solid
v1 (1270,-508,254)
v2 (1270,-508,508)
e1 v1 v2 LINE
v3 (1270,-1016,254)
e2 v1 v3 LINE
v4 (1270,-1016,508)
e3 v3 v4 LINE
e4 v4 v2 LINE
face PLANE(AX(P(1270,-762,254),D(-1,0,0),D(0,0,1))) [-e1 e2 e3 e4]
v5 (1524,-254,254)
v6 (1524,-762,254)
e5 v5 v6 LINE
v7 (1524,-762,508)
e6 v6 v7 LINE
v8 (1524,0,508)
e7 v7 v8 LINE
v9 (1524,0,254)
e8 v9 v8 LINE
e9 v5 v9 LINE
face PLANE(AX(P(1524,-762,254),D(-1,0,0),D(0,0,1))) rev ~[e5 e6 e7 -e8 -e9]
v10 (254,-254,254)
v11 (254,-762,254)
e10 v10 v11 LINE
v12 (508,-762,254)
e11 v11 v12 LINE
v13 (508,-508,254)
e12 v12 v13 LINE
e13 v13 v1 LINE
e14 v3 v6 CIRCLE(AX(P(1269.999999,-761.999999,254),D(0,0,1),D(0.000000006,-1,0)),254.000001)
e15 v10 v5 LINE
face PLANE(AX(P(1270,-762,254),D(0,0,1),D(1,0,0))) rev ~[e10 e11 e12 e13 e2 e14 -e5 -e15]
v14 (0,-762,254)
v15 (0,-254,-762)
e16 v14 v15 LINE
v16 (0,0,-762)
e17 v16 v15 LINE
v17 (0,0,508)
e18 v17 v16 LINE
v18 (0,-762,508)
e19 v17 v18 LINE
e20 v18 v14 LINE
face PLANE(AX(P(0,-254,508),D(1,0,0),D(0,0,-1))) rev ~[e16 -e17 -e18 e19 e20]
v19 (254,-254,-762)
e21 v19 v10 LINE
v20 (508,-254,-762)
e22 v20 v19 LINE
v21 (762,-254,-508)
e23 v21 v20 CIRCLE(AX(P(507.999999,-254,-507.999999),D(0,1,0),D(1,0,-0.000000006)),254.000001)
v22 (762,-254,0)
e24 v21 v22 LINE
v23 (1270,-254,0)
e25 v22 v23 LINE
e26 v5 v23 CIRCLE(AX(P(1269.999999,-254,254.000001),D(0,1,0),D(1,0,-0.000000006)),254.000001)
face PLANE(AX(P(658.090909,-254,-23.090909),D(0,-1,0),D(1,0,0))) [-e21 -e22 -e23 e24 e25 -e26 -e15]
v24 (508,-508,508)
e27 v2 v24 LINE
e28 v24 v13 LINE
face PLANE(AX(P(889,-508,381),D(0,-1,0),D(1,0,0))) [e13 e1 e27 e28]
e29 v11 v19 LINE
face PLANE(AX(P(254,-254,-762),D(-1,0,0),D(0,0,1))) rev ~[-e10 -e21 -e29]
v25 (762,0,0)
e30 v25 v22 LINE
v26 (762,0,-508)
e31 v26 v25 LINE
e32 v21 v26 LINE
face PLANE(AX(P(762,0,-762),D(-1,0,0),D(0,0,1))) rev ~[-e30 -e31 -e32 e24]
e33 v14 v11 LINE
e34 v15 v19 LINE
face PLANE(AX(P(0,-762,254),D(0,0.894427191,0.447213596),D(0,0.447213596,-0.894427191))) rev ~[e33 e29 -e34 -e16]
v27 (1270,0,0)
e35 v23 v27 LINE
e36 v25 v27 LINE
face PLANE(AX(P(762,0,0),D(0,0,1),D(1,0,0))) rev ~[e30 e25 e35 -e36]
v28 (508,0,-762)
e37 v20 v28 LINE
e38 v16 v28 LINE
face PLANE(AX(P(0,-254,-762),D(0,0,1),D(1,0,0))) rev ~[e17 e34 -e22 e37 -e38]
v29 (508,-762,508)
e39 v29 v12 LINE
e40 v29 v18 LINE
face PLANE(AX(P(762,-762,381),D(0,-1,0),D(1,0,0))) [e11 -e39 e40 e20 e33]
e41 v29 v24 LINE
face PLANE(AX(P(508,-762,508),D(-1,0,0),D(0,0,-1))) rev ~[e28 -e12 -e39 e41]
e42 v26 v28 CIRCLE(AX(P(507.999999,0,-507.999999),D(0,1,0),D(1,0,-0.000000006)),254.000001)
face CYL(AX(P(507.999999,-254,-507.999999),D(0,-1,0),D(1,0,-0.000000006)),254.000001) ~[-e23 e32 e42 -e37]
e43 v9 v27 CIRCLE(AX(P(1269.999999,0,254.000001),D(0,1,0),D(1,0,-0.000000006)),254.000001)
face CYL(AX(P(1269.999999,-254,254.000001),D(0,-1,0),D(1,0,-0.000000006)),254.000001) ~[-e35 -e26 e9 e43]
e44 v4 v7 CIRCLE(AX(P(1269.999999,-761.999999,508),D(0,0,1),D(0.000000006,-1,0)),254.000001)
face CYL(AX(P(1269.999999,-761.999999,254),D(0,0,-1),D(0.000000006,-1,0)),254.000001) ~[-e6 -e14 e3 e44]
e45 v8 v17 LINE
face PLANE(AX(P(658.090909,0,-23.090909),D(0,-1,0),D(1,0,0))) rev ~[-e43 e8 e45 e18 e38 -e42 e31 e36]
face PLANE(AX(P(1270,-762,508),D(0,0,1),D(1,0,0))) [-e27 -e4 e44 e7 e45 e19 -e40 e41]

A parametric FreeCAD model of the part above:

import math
import FreeCAD as App
import Part
import Sketcher

V = App.Vector
Q = App.Units.Quantity


def add_polygon(sketch, points):
    """Adds a closed chain of lines whose ends are joined by coincident constraints."""
    first, n = sketch.GeometryCount, len(points)
    for a, b in zip(points, points[1:] + points[:1]):
        sketch.addGeometry(Part.LineSegment(App.Vector(*a, 0), App.Vector(*b, 0)), False)
    for i in range(n):
        sketch.addConstraint(Sketcher.Constraint("Coincident", first + i, 2, first + (i + 1) % n, 1))

doc = App.newDocument("Part")
body = doc.addObject("PartDesign::Body", "Body")

sketch1 = doc.addObject("Sketcher::SketchObject", "Sketch")
body.addObject(sketch1)
sketch1.AttachmentSupport = (doc.XZ_Plane, [""])
sketch1.MapMode = "FlatFace"
add_polygon(sketch1, [(1524, 508), (0, 508), (0, -762), (762, -762), (762, 0), (1524, 0)])
sketch1.addConstraint(Sketcher.Constraint("Horizontal", 0))
sketch1.addConstraint(Sketcher.Constraint("Vertical", 1))
sketch1.addConstraint(Sketcher.Constraint("Horizontal", 2))
sketch1.addConstraint(Sketcher.Constraint("Vertical", 3))
sketch1.addConstraint(Sketcher.Constraint("Horizontal", 4))
sketch1.addConstraint(Sketcher.Constraint("Vertical", 5))
sketch1.addConstraint(Sketcher.Constraint("PointOnObject", 0, 2, -2))
sketch1.addConstraint(Sketcher.Constraint("PointOnObject", 3, 2, -1))
sketch1.addConstraint(Sketcher.Constraint("Equal", 2, 4))
sketch1.addConstraint(Sketcher.Constraint("Equal", 4, 3))
sketch1.addConstraint(Sketcher.Constraint("DistanceX", 0, 2, 0, 1, Q("60 in")))
sketch1.addConstraint(Sketcher.Constraint("DistanceY", 1, 2, 1, 1, Q("50 in")))
pad1 = doc.addObject("PartDesign::Pad", "Pad")
body.addObject(pad1)
pad1.Profile = sketch1
pad1.Length = Q("10 in")

sketch2 = doc.addObject("Sketcher::SketchObject", "Sketch001")
body.addObject(sketch2)
sketch2.AttachmentSupport = (doc.XZ_Plane, [""])
sketch2.MapMode = "FlatFace"
sketch2.AttachmentOffset = App.Placement(V(0, 0, 10 * 25.4), App.Rotation())
add_polygon(sketch2, [(0, 254), (0, -762), (254, -762), (254, 254)])
sketch2.addConstraint(Sketcher.Constraint("Vertical", 0))
sketch2.addConstraint(Sketcher.Constraint("Horizontal", 1))
sketch2.addConstraint(Sketcher.Constraint("Vertical", 2))
sketch2.addConstraint(Sketcher.Constraint("Horizontal", 3))
sketch2.addConstraint(Sketcher.Constraint("PointOnObject", 0, 2, -2))
sketch2.addConstraint(Sketcher.Constraint("DistanceX", 1, 1, 1, 2, Q("10 in")))
sketch2.addConstraint(Sketcher.Constraint("DistanceY", 0, 2, 0, 1, Q("40 in")))
sketch2.addConstraint(Sketcher.Constraint("DistanceY", 0, 2, -1, 1, Q("30 in")))
pad2 = doc.addObject("PartDesign::Pad", "Pad001")
body.addObject(pad2)
pad2.Profile = sketch2
pad2.Length = Q("20 in")

sketch3 = doc.addObject("Sketcher::SketchObject", "Sketch002")
body.addObject(sketch3)
sketch3.AttachmentSupport = (doc.YZ_Plane, [""])
sketch3.MapMode = "FlatFace"
add_polygon(sketch3, [(-762, 254), (-254, -762), (-762, -762)])
sketch3.addConstraint(Sketcher.Constraint("Horizontal", 1))
sketch3.addConstraint(Sketcher.Constraint("Vertical", 2))
sketch3.addConstraint(Sketcher.Constraint("DistanceX", 1, 2, 1, 1, Q("20 in")))
sketch3.addConstraint(Sketcher.Constraint("DistanceY", 2, 1, 2, 2, Q("40 in")))
sketch3.addConstraint(Sketcher.Constraint("DistanceX", 0, 2, -1, 1, Q("10 in")))
sketch3.addConstraint(Sketcher.Constraint("DistanceY", 0, 2, -1, 1, Q("30 in")))
pocket1 = doc.addObject("PartDesign::Pocket", "Pocket")
body.addObject(pocket1)
pocket1.Profile = sketch3
pocket1.Length = Q("12.2 in")
pocket1.Reversed = True

sketch4 = doc.addObject("Sketcher::SketchObject", "Sketch003")
body.addObject(sketch4)
sketch4.AttachmentSupport = (doc.XZ_Plane, [""])
sketch4.MapMode = "FlatFace"
sketch4.AttachmentOffset = App.Placement(V(0, 0, 10 * 25.4), App.Rotation())
add_polygon(sketch4, [(1524, 508), (0, 508), (0, 254), (1524, 254)])
sketch4.addConstraint(Sketcher.Constraint("Horizontal", 0))
sketch4.addConstraint(Sketcher.Constraint("Vertical", 1))
sketch4.addConstraint(Sketcher.Constraint("Horizontal", 2))
sketch4.addConstraint(Sketcher.Constraint("Vertical", 3))
sketch4.addConstraint(Sketcher.Constraint("PointOnObject", 0, 2, -2))
sketch4.addConstraint(Sketcher.Constraint("DistanceX", 0, 2, 0, 1, Q("60 in")))
sketch4.addConstraint(Sketcher.Constraint("DistanceY", 1, 2, 1, 1, Q("10 in")))
sketch4.addConstraint(Sketcher.Constraint("DistanceY", -1, 1, 0, 2, Q("20 in")))
pad3 = doc.addObject("PartDesign::Pad", "Pad002")
body.addObject(pad3)
pad3.Profile = sketch4
pad3.Length = Q("20 in")

sketch5 = doc.addObject("Sketcher::SketchObject", "Sketch004")
body.addObject(sketch5)
sketch5.AttachmentSupport = (doc.XZ_Plane, [""])
sketch5.MapMode = "FlatFace"
sketch5.AttachmentOffset = App.Placement(V(0, 0, 30 * 25.4), App.Rotation())
add_polygon(sketch5, [(508, 508), (508, 254), (1270, 254), (1270, 508)])
sketch5.addConstraint(Sketcher.Constraint("Vertical", 0))
sketch5.addConstraint(Sketcher.Constraint("Horizontal", 1))
sketch5.addConstraint(Sketcher.Constraint("Vertical", 2))
sketch5.addConstraint(Sketcher.Constraint("Horizontal", 3))
sketch5.addConstraint(Sketcher.Constraint("DistanceX", 1, 1, 1, 2, Q("30 in")))
sketch5.addConstraint(Sketcher.Constraint("DistanceY", 0, 2, 0, 1, Q("10 in")))
sketch5.addConstraint(Sketcher.Constraint("DistanceX", -1, 1, 0, 2, Q("20 in")))
sketch5.addConstraint(Sketcher.Constraint("DistanceY", -1, 1, 0, 2, Q("10 in")))
pocket2 = doc.addObject("PartDesign::Pocket", "Pocket001")
body.addObject(pocket2)
pocket2.Profile = sketch5
pocket2.Length = Q("10 in")

sketch6 = doc.addObject("Sketcher::SketchObject", "Sketch005")
body.addObject(sketch6)
sketch6.AttachmentSupport = (doc.XZ_Plane, [""])
sketch6.MapMode = "FlatFace"
sketch6.AttachmentOffset = App.Placement(V(0, 0, 30 * 25.4), App.Rotation())
add_polygon(sketch6, [(1270, 508), (1270, 254), (1524, 254), (1524, 508)])
sketch6.addConstraint(Sketcher.Constraint("Vertical", 0))
sketch6.addConstraint(Sketcher.Constraint("Horizontal", 1))
sketch6.addConstraint(Sketcher.Constraint("Vertical", 2))
sketch6.addConstraint(Sketcher.Constraint("Horizontal", 3))
sketch6.addConstraint(Sketcher.Constraint("Equal", 3, 0))
sketch6.addConstraint(Sketcher.Constraint("DistanceX", 1, 1, 1, 2, Q("10 in")))
sketch6.addConstraint(Sketcher.Constraint("DistanceX", -1, 1, 0, 2, Q("50 in")))
sketch6.addConstraint(Sketcher.Constraint("DistanceY", -1, 1, 0, 2, Q("10 in")))
pad4 = doc.addObject("PartDesign::Pad", "Pad003")
body.addObject(pad4)
pad4.Profile = sketch6
pad4.Length = Q("10 in")

sketch7 = doc.addObject("Sketcher::SketchObject", "Sketch006")
body.addObject(sketch7)
sketch7.AttachmentSupport = (doc.XZ_Plane, [""])
sketch7.MapMode = "FlatFace"
sketch7.AttachmentOffset = App.Placement(V(0, 0, 10 * 25.4), App.Rotation())
sketch7.addGeometry(Part.ArcOfCircle(Part.Circle(V(508, -508, 0), V(0, 0, 1), 254), math.radians(-90), math.radians(0)), False)
sketch7.addGeometry(Part.LineSegment(V(508, -762, 0), V(762, -762, 0)), False)
sketch7.addGeometry(Part.LineSegment(V(762, -762, 0), V(762, -508, 0)), False)
sketch7.addConstraint(Sketcher.Constraint("Tangent", 0, 1, 1, 1))
sketch7.addConstraint(Sketcher.Constraint("Coincident", 1, 2, 2, 1))
sketch7.addConstraint(Sketcher.Constraint("Tangent", 2, 2, 0, 2))
sketch7.addConstraint(Sketcher.Constraint("Horizontal", 1))
sketch7.addConstraint(Sketcher.Constraint("Vertical", 2))
sketch7.addConstraint(Sketcher.Constraint("Radius", 0, Q("10.0000001 in")))
sketch7.addConstraint(Sketcher.Constraint("DistanceX", -1, 1, 0, 3, Q("19.9999999 in")))
sketch7.addConstraint(Sketcher.Constraint("DistanceY", 0, 3, -1, 1, Q("19.9999999 in")))
pocket3 = doc.addObject("PartDesign::Pocket", "Pocket002")
body.addObject(pocket3)
pocket3.Profile = sketch7
pocket3.Length = Q("10 in")

sketch8 = doc.addObject("Sketcher::SketchObject", "Sketch007")
body.addObject(sketch8)
sketch8.AttachmentSupport = (doc.XZ_Plane, [""])
sketch8.MapMode = "FlatFace"
sketch8.AttachmentOffset = App.Placement(V(0, 0, 10 * 25.4), App.Rotation())
sketch8.addGeometry(Part.LineSegment(V(1524, 0, 0), V(1524, 254, 0)), False)
sketch8.addGeometry(Part.ArcOfCircle(Part.Circle(V(1270, 254, 0), V(0, 0, 1), 254), math.radians(-90), math.radians(0)), False)
sketch8.addGeometry(Part.LineSegment(V(1270, 0, 0), V(1524, 0, 0)), False)
sketch8.addConstraint(Sketcher.Constraint("Tangent", 0, 2, 1, 2))
sketch8.addConstraint(Sketcher.Constraint("Tangent", 1, 1, 2, 1))
sketch8.addConstraint(Sketcher.Constraint("Coincident", 2, 2, 0, 1))
sketch8.addConstraint(Sketcher.Constraint("Vertical", 0))
sketch8.addConstraint(Sketcher.Constraint("Horizontal", 2))
sketch8.addConstraint(Sketcher.Constraint("PointOnObject", 1, 1, -1))
sketch8.addConstraint(Sketcher.Constraint("Radius", 1, Q("10.0000001 in")))
sketch8.addConstraint(Sketcher.Constraint("DistanceX", -1, 1, 1, 3, Q("49.9999999 in")))
pocket4 = doc.addObject("PartDesign::Pocket", "Pocket003")
body.addObject(pocket4)
pocket4.Profile = sketch8
pocket4.Length = Q("10 in")

sketch9 = doc.addObject("Sketcher::SketchObject", "Sketch008")
body.addObject(sketch9)
sketch9.AttachmentSupport = (doc.XY_Plane, [""])
sketch9.MapMode = "FlatFace"
sketch9.AttachmentOffset = App.Placement(V(0, 0, 10 * 25.4), App.Rotation())
sketch9.addGeometry(Part.LineSegment(V(1524, -1016, 0), V(1270, -1016, 0)), False)
sketch9.addGeometry(Part.ArcOfCircle(Part.Circle(V(1270, -762, 0), V(0, 0, 1), 254), math.radians(-90), math.radians(0)), False)
sketch9.addGeometry(Part.LineSegment(V(1524, -762, 0), V(1524, -1016, 0)), False)
sketch9.addConstraint(Sketcher.Constraint("Tangent", 0, 2, 1, 1))
sketch9.addConstraint(Sketcher.Constraint("Tangent", 1, 2, 2, 1))
sketch9.addConstraint(Sketcher.Constraint("Coincident", 2, 2, 0, 1))
sketch9.addConstraint(Sketcher.Constraint("Horizontal", 0))
sketch9.addConstraint(Sketcher.Constraint("Vertical", 2))
sketch9.addConstraint(Sketcher.Constraint("Radius", 1, Q("10.0000001 in")))
sketch9.addConstraint(Sketcher.Constraint("DistanceX", -1, 1, 1, 3, Q("49.9999999 in")))
sketch9.addConstraint(Sketcher.Constraint("DistanceY", 1, 3, -1, 1, Q("29.9999999 in")))
pocket5 = doc.addObject("PartDesign::Pocket", "Pocket004")
body.addObject(pocket5)
pocket5.Profile = sketch9
pocket5.Length = Q("10 in")
pocket5.Reversed = True

doc.recompute()
